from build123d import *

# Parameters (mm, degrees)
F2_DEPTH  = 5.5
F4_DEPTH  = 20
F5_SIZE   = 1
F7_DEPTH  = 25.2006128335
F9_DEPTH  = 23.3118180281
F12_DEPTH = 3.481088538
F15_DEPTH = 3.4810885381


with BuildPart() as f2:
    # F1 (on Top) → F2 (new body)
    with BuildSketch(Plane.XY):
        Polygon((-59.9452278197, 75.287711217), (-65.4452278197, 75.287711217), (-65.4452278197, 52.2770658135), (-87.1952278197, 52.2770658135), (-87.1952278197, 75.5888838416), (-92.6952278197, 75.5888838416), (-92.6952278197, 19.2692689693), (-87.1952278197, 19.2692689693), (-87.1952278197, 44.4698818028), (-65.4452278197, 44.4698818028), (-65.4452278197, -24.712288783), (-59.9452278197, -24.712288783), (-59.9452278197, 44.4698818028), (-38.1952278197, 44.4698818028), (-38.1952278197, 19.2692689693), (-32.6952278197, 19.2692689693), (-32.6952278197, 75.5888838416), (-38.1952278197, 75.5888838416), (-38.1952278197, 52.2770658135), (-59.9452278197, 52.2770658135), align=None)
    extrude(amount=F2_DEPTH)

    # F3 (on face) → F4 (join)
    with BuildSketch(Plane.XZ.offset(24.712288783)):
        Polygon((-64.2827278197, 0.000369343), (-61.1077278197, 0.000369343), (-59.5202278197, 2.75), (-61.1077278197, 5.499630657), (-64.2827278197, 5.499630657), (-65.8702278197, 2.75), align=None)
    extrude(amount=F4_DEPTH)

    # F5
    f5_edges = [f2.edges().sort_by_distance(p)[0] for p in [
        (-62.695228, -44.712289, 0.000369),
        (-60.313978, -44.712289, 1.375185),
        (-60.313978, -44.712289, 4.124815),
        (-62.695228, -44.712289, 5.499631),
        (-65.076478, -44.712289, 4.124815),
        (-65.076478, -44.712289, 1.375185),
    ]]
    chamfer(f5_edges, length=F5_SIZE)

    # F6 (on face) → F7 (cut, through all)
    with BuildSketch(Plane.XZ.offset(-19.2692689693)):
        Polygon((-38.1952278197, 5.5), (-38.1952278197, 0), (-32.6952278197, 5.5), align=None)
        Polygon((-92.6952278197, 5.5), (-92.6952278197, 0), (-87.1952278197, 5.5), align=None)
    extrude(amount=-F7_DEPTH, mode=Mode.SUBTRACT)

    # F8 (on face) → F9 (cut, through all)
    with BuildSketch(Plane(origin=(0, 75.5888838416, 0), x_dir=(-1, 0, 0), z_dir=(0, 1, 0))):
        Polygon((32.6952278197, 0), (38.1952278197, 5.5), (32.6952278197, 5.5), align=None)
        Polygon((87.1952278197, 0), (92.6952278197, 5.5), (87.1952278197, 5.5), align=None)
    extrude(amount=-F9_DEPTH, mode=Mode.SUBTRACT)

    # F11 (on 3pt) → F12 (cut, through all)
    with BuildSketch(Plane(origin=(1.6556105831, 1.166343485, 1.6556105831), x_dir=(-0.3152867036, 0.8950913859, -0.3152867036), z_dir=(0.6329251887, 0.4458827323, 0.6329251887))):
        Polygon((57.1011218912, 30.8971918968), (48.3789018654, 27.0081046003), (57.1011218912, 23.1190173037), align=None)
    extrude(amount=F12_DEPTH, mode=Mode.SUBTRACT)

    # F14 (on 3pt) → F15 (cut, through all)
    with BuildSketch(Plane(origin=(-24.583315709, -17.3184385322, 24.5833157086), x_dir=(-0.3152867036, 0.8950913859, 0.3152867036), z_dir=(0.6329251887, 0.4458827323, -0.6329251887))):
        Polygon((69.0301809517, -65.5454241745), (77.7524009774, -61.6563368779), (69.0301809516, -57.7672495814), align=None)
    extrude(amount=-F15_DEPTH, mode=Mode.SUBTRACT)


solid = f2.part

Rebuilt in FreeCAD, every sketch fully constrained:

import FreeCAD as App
import Part
import Sketcher
Q = App.Units.Quantity


def edges_at(feature, points):
    """Names of the edges that pass closest to the given points."""
    edges = feature.Shape.Edges
    near = lambda p: min(range(len(edges)), key=lambda i: edges[i].distToShape(Part.Vertex(*p))[0])
    return sorted({f"Edge{near(p) + 1}" for p in points})

doc = App.newDocument("Part")
body = doc.addObject("PartDesign::Body", "Body")

# Sketch on XY plane
sketch1 = body.newObject("Sketcher::SketchObject", "Sketch")
sketch1.AttachmentSupport = (doc.getObject("XY_Plane"), [""])
sketch1.MapMode = "FlatFace"
sketch1.addGeometry([
    Part.LineSegment(App.Vector(-60, 75, 0), App.Vector(-65, 75, 0)),  # 0
    Part.LineSegment(App.Vector(-65, 75, 0), App.Vector(-65, 52, 0)),  # 1
    Part.LineSegment(App.Vector(-65, 52, 0), App.Vector(-87, 52, 0)),  # 2
    Part.LineSegment(App.Vector(-87, 52, 0), App.Vector(-87, 76, 0)),  # 3
    Part.LineSegment(App.Vector(-87, 76, 0), App.Vector(-93, 76, 0)),  # 4
    Part.LineSegment(App.Vector(-93, 76, 0), App.Vector(-93, 19, 0)),  # 5
    Part.LineSegment(App.Vector(-93, 19, 0), App.Vector(-87, 19, 0)),  # 6
    Part.LineSegment(App.Vector(-87, 19, 0), App.Vector(-87, 44, 0)),  # 7
    Part.LineSegment(App.Vector(-87, 44, 0), App.Vector(-65, 44, 0)),  # 8
    Part.LineSegment(App.Vector(-65, 44, 0), App.Vector(-65, -25, 0)),  # 9
    Part.LineSegment(App.Vector(-65, -25, 0), App.Vector(-60, -25, 0)),  # 10
    Part.LineSegment(App.Vector(-60, -25, 0), App.Vector(-60, 44, 0)),  # 11
    Part.LineSegment(App.Vector(-60, 44, 0), App.Vector(-38, 44, 0)),  # 12
    Part.LineSegment(App.Vector(-38, 44, 0), App.Vector(-38, 19, 0)),  # 13
    Part.LineSegment(App.Vector(-38, 19, 0), App.Vector(-33, 19, 0)),  # 14
    Part.LineSegment(App.Vector(-33, 19, 0), App.Vector(-33, 76, 0)),  # 15
    Part.LineSegment(App.Vector(-33, 76, 0), App.Vector(-38, 76, 0)),  # 16
    Part.LineSegment(App.Vector(-38, 76, 0), App.Vector(-38, 52, 0)),  # 17
    Part.LineSegment(App.Vector(-38, 52, 0), App.Vector(-60, 52, 0)),  # 18
    Part.LineSegment(App.Vector(-60, 52, 0), App.Vector(-60, 75, 0)),  # 19
], False)
sketch1.addConstraint([
    Sketcher.Constraint("Coincident", 0, 2, 1, 1),
    Sketcher.Constraint("Coincident", 1, 2, 2, 1),
    Sketcher.Constraint("Coincident", 2, 2, 3, 1),
    Sketcher.Constraint("Coincident", 3, 2, 4, 1),
    Sketcher.Constraint("Coincident", 4, 2, 5, 1),
    Sketcher.Constraint("Coincident", 5, 2, 6, 1),
    Sketcher.Constraint("Coincident", 6, 2, 7, 1),
    Sketcher.Constraint("Coincident", 7, 2, 8, 1),
    Sketcher.Constraint("Coincident", 8, 2, 9, 1),
    Sketcher.Constraint("Coincident", 9, 2, 10, 1),
    Sketcher.Constraint("Coincident", 10, 2, 11, 1),
    Sketcher.Constraint("Coincident", 11, 2, 12, 1),
    Sketcher.Constraint("Coincident", 12, 2, 13, 1),
    Sketcher.Constraint("Coincident", 13, 2, 14, 1),
    Sketcher.Constraint("Coincident", 14, 2, 15, 1),
    Sketcher.Constraint("Coincident", 15, 2, 16, 1),
    Sketcher.Constraint("Coincident", 16, 2, 17, 1),
    Sketcher.Constraint("Coincident", 17, 2, 18, 1),
    Sketcher.Constraint("Coincident", 18, 2, 19, 1),
    Sketcher.Constraint("Coincident", 19, 2, 0, 1),
    Sketcher.Constraint("Horizontal", 0),
    Sketcher.Constraint("Vertical", 1),
    Sketcher.Constraint("Horizontal", 2),
    Sketcher.Constraint("Vertical", 3),
    Sketcher.Constraint("Horizontal", 4),
    Sketcher.Constraint("Vertical", 5),
    Sketcher.Constraint("Horizontal", 6),
    Sketcher.Constraint("Vertical", 7),
    Sketcher.Constraint("Horizontal", 8),
    Sketcher.Constraint("Vertical", 9),
    Sketcher.Constraint("Horizontal", 10),
    Sketcher.Constraint("Vertical", 11),
    Sketcher.Constraint("Horizontal", 12),
    Sketcher.Constraint("Vertical", 13),
    Sketcher.Constraint("Horizontal", 14),
    Sketcher.Constraint("Vertical", 15),
    Sketcher.Constraint("Horizontal", 16),
    Sketcher.Constraint("Vertical", 17),
    Sketcher.Constraint("Horizontal", 18),
    Sketcher.Constraint("Vertical", 19),
    Sketcher.Constraint("Horizontal", 8, 2, 11, 2),
    Sketcher.Constraint("Horizontal", 6, 2, 13, 2),
    Sketcher.Constraint("Horizontal", 4, 2, 15, 2),
    Sketcher.Constraint("Horizontal", 2, 2, 17, 2),
    Sketcher.Constraint("Vertical", 3, 2, 6, 2),
    Sketcher.Constraint("Vertical", 1, 2, 8, 2),
    Sketcher.Constraint("Vertical", 13, 2, 16, 2),
    Sketcher.Constraint("Vertical", 11, 2, 18, 2),
    Sketcher.Constraint("Equal", 0, 4),
    Sketcher.Constraint("Equal", 8, 12),
    Sketcher.Constraint("Equal", 10, 14),
    Sketcher.Constraint("DistanceX", 0, 2, 0, 1, 5.5),
    Sketcher.Constraint("DistanceX", 7, 2, 12, 2, 49.0),
    Sketcher.Constraint("DistanceY", 3, 1, 3, 2, 23.311818),
    Sketcher.Constraint("DistanceY", 9, 2, 9, 1, 69.182171),
    Sketcher.Constraint("DistanceY", 1, 2, 1, 1, 23.010645),
    Sketcher.Constraint("DistanceY", 5, 2, 5, 1, 56.319615),
    Sketcher.Constraint("DistanceY", 7, 1, 7, 2, 25.200613),
    Sketcher.Constraint("DistanceY", -1, 1, 0, 2, 75.287711),
    Sketcher.Constraint("DistanceX", 0, 2, -1, 1, 65.445228),
])
pad1 = body.newObject("PartDesign::Pad", "Pad")
pad1.Profile = sketch1
pad1.Length = 5.5

# Sketch on XZ plane
sketch2 = body.newObject("Sketcher::SketchObject", "Sketch001")
sketch2.AttachmentSupport = (doc.getObject("XZ_Plane"), [""])
sketch2.MapMode = "FlatFace"
sketch2.AttachmentOffset = App.Placement(App.Vector(0, 0, 24.712289), App.Rotation())
sketch2.addGeometry([
    Part.LineSegment(App.Vector(-64.3, 0, 0), App.Vector(-61.1, 0, 0)),  # 0
    Part.LineSegment(App.Vector(-61.1, 0, 0), App.Vector(-59.5, 2.8, 0)),  # 1
    Part.LineSegment(App.Vector(-59.5, 2.8, 0), App.Vector(-61.1, 5.5, 0)),  # 2
    Part.LineSegment(App.Vector(-61.1, 5.5, 0), App.Vector(-64.3, 5.5, 0)),  # 3
    Part.LineSegment(App.Vector(-64.3, 5.5, 0), App.Vector(-65.9, 2.8, 0)),  # 4
    Part.LineSegment(App.Vector(-65.9, 2.8, 0), App.Vector(-64.3, 0, 0)),  # 5
], False)
sketch2.addConstraint([
    Sketcher.Constraint("Coincident", 0, 2, 1, 1),
    Sketcher.Constraint("Coincident", 1, 2, 2, 1),
    Sketcher.Constraint("Coincident", 2, 2, 3, 1),
    Sketcher.Constraint("Coincident", 3, 2, 4, 1),
    Sketcher.Constraint("Coincident", 4, 2, 5, 1),
    Sketcher.Constraint("Coincident", 5, 2, 0, 1),
    Sketcher.Constraint("Horizontal", 0),
    Sketcher.Constraint("Horizontal", 3),
    Sketcher.Constraint("Parallel", 1, 4),
    Sketcher.Constraint("Parallel", 2, 5),
    Sketcher.Constraint("Horizontal", 1, 2, 4, 2),
    Sketcher.Constraint("Vertical", 0, 2, 2, 2),
    Sketcher.Constraint("Vertical", 3, 2, 5, 2),
    Sketcher.Constraint("Angle", 1, Q("60 deg")),
    Sketcher.Constraint("DistanceX", 0, 1, 0, 2, 3.175),
    Sketcher.Constraint("DistanceY", -1, 1, 1, 2, 2.75),
    Sketcher.Constraint("DistanceX", 4, 2, 1, 2, 6.35),
    Sketcher.Constraint("DistanceX", 0, 2, -1, 1, 61.107728),
])
pad2 = body.newObject("PartDesign::Pad", "Pad001")
pad2.Profile = sketch2
pad2.Length = 20
doc.recompute()

chamfer = body.newObject("PartDesign::Chamfer", "Chamfer")
chamfer.Base = (pad2, edges_at(pad2, [
    (-62.695, -44.712, 0),
    (-60.314, -44.712, 1.375),
    (-60.314, -44.712, 4.125),
    (-62.695, -44.712, 5.5),
    (-65.076, -44.712, 4.125),
    (-65.076, -44.712, 1.375),
]))
chamfer.Size = 1

# Sketch on XZ plane
sketch3 = body.newObject("Sketcher::SketchObject", "Sketch002")
sketch3.AttachmentSupport = (doc.getObject("XZ_Plane"), [""])
sketch3.MapMode = "FlatFace"
sketch3.AttachmentOffset = App.Placement(App.Vector(0, 0, -19.269269), App.Rotation())
sketch3.addGeometry([
    Part.LineSegment(App.Vector(-38, 6, 0), App.Vector(-38, 0, 0)),  # 0
    Part.LineSegment(App.Vector(-38, 0, 0), App.Vector(-33, 6, 0)),  # 1
    Part.LineSegment(App.Vector(-33, 6, 0), App.Vector(-38, 6, 0)),  # 2
    Part.LineSegment(App.Vector(-93, 6, 0), App.Vector(-93, 0, 0)),  # 3
    Part.LineSegment(App.Vector(-93, 0, 0), App.Vector(-87, 6, 0)),  # 4
    Part.LineSegment(App.Vector(-87, 6, 0), App.Vector(-93, 6, 0)),  # 5
], False)
sketch3.addConstraint([
    Sketcher.Constraint("Coincident", 0, 2, 1, 1),
    Sketcher.Constraint("Coincident", 1, 2, 2, 1),
    Sketcher.Constraint("Coincident", 2, 2, 0, 1),
    Sketcher.Constraint("Coincident", 3, 2, 4, 1),
    Sketcher.Constraint("Coincident", 4, 2, 5, 1),
    Sketcher.Constraint("Coincident", 5, 2, 3, 1),
    Sketcher.Constraint("Vertical", 0),
    Sketcher.Constraint("Horizontal", 2),
    Sketcher.Constraint("Vertical", 3),
    Sketcher.Constraint("Horizontal", 5),
    Sketcher.Constraint("PointOnObject", 0, 2, -1),
    Sketcher.Constraint("PointOnObject", 3, 2, -1),
    Sketcher.Constraint("Parallel", 1, 4),
    Sketcher.Constraint("Horizontal", 2, 2, 4, 2),
    Sketcher.Constraint("Equal", 5, 0),
    Sketcher.Constraint("DistanceX", 2, 2, 2, 1, 5.5),
    Sketcher.Constraint("DistanceX", 3, 2, 1, 2, 60.0),
    Sketcher.Constraint("DistanceX", 0, 2, -1, 1, 38.195228),
])
pocket1 = body.newObject("PartDesign::Pocket", "Pocket")
pocket1.Profile = sketch3
pocket1.Length = 25.200613

# Sketch on XZ plane
sketch4 = body.newObject("Sketcher::SketchObject", "Sketch003")
sketch4.AttachmentSupport = (doc.getObject("XZ_Plane"), [""])
sketch4.MapMode = "FlatFace"
sketch4.AttachmentOffset = App.Placement(App.Vector(0, 0, -75.588884), App.Rotation())
sketch4.addGeometry([
    Part.LineSegment(App.Vector(-33, 0, 0), App.Vector(-38, 6, 0)),  # 0
    Part.LineSegment(App.Vector(-38, 6, 0), App.Vector(-33, 6, 0)),  # 1
    Part.LineSegment(App.Vector(-33, 6, 0), App.Vector(-33, 0, 0)),  # 2
    Part.LineSegment(App.Vector(-87, 0, 0), App.Vector(-93, 6, 0)),  # 3
    Part.LineSegment(App.Vector(-93, 6, 0), App.Vector(-87, 6, 0)),  # 4
    Part.LineSegment(App.Vector(-87, 6, 0), App.Vector(-87, 0, 0)),  # 5
], False)
sketch4.addConstraint([
    Sketcher.Constraint("Coincident", 0, 2, 1, 1),
    Sketcher.Constraint("Coincident", 1, 2, 2, 1),
    Sketcher.Constraint("Coincident", 2, 2, 0, 1),
    Sketcher.Constraint("Coincident", 3, 2, 4, 1),
    Sketcher.Constraint("Coincident", 4, 2, 5, 1),
    Sketcher.Constraint("Coincident", 5, 2, 3, 1),
    Sketcher.Constraint("Horizontal", 1),
    Sketcher.Constraint("Vertical", 2),
    Sketcher.Constraint("Horizontal", 4),
    Sketcher.Constraint("Vertical", 5),
    Sketcher.Constraint("PointOnObject", 2, 2, -1),
    Sketcher.Constraint("PointOnObject", 5, 2, -1),
    Sketcher.Constraint("Parallel", 0, 3),
    Sketcher.Constraint("Horizontal", 1, 2, 3, 2),
    Sketcher.Constraint("Equal", 4, 2),
    Sketcher.Constraint("DistanceX", 1, 1, 1, 2, 5.5),
    Sketcher.Constraint("DistanceX", 3, 2, 1, 2, 60.0),
    Sketcher.Constraint("DistanceX", 0, 2, -1, 1, 38.195228),
])
pocket2 = body.newObject("PartDesign::Pocket", "Pocket001")
pocket2.Profile = sketch4
pocket2.Length = 23.311818
pocket2.Reversed = True

# Sketch on an angled plane
sketch5 = body.newObject("Sketcher::SketchObject", "Sketch004")
sketch5.Placement = App.Placement(App.Vector(1.655611, 1.166343, 1.655611), App.Rotation(App.Vector(-0.315286704, 0.895091386, -0.315286704), App.Vector(-0.707106782, 0, 0.707106782), App.Vector(0.632925189, 0.445882732, 0.632925189), "ZXY"))
sketch5.addGeometry([
    Part.LineSegment(App.Vector(57, 31, 0), App.Vector(48, 27, 0)),
    Part.LineSegment(App.Vector(48, 27, 0), App.Vector(57, 23, 0)),
    Part.LineSegment(App.Vector(57, 23, 0), App.Vector(57, 31, 0)),
], False)
sketch5.addConstraint([
    Sketcher.Constraint("Coincident", 0, 2, 1, 1),
    Sketcher.Constraint("Coincident", 1, 2, 2, 1),
    Sketcher.Constraint("Coincident", 2, 2, 0, 1),
    Sketcher.Constraint("Vertical", 2),
    Sketcher.Constraint("Equal", 0, 1),
    Sketcher.Constraint("DistanceX", -1, 1, 0, 2, 48.378902),
    Sketcher.Constraint("Distance", 0, 9.54998),
    Sketcher.Constraint("DistanceY", 2, 1, 2, 2, 7.778175),
    Sketcher.Constraint("DistanceY", -1, 1, 2, 2, 30.897192),
])
pocket3 = body.newObject("PartDesign::Pocket", "Pocket002")
pocket3.Profile = sketch5
pocket3.Type = "ThroughAll"
pocket3.Reversed = True

# Sketch on an angled plane
sketch6 = body.newObject("Sketcher::SketchObject", "Sketch005")
sketch6.Placement = App.Placement(App.Vector(-24.583316, -17.318439, 24.583316), App.Rotation(App.Vector(-0.315286704, 0.895091386, 0.315286704), App.Vector(0.707106782, 0, 0.707106782), App.Vector(0.632925189, 0.445882732, -0.632925189), "ZXY"))
sketch6.addGeometry([
    Part.LineSegment(App.Vector(69, -66, 0), App.Vector(78, -62, 0)),
    Part.LineSegment(App.Vector(78, -62, 0), App.Vector(69, -58, 0)),
    Part.LineSegment(App.Vector(69, -58, 0), App.Vector(69, -66, 0)),
], False)
sketch6.addConstraint([
    Sketcher.Constraint("Coincident", 0, 2, 1, 1),
    Sketcher.Constraint("Coincident", 1, 2, 2, 1),
    Sketcher.Constraint("Coincident", 2, 2, 0, 1),
    Sketcher.Constraint("Vertical", 2),
    Sketcher.Constraint("Equal", 0, 1),
    Sketcher.Constraint("DistanceX", -1, 1, 0, 2, 77.752401),
    Sketcher.Constraint("Distance", 0, 9.54998),
    Sketcher.Constraint("DistanceY", 2, 2, 2, 1, 7.778175),
    Sketcher.Constraint("DistanceY", 1, 2, -1, 1, 57.76725),
])
pocket4 = body.newObject("PartDesign::Pocket", "Pocket003")
pocket4.Profile = sketch6
pocket4.Type = "ThroughAll"

doc.recompute()
